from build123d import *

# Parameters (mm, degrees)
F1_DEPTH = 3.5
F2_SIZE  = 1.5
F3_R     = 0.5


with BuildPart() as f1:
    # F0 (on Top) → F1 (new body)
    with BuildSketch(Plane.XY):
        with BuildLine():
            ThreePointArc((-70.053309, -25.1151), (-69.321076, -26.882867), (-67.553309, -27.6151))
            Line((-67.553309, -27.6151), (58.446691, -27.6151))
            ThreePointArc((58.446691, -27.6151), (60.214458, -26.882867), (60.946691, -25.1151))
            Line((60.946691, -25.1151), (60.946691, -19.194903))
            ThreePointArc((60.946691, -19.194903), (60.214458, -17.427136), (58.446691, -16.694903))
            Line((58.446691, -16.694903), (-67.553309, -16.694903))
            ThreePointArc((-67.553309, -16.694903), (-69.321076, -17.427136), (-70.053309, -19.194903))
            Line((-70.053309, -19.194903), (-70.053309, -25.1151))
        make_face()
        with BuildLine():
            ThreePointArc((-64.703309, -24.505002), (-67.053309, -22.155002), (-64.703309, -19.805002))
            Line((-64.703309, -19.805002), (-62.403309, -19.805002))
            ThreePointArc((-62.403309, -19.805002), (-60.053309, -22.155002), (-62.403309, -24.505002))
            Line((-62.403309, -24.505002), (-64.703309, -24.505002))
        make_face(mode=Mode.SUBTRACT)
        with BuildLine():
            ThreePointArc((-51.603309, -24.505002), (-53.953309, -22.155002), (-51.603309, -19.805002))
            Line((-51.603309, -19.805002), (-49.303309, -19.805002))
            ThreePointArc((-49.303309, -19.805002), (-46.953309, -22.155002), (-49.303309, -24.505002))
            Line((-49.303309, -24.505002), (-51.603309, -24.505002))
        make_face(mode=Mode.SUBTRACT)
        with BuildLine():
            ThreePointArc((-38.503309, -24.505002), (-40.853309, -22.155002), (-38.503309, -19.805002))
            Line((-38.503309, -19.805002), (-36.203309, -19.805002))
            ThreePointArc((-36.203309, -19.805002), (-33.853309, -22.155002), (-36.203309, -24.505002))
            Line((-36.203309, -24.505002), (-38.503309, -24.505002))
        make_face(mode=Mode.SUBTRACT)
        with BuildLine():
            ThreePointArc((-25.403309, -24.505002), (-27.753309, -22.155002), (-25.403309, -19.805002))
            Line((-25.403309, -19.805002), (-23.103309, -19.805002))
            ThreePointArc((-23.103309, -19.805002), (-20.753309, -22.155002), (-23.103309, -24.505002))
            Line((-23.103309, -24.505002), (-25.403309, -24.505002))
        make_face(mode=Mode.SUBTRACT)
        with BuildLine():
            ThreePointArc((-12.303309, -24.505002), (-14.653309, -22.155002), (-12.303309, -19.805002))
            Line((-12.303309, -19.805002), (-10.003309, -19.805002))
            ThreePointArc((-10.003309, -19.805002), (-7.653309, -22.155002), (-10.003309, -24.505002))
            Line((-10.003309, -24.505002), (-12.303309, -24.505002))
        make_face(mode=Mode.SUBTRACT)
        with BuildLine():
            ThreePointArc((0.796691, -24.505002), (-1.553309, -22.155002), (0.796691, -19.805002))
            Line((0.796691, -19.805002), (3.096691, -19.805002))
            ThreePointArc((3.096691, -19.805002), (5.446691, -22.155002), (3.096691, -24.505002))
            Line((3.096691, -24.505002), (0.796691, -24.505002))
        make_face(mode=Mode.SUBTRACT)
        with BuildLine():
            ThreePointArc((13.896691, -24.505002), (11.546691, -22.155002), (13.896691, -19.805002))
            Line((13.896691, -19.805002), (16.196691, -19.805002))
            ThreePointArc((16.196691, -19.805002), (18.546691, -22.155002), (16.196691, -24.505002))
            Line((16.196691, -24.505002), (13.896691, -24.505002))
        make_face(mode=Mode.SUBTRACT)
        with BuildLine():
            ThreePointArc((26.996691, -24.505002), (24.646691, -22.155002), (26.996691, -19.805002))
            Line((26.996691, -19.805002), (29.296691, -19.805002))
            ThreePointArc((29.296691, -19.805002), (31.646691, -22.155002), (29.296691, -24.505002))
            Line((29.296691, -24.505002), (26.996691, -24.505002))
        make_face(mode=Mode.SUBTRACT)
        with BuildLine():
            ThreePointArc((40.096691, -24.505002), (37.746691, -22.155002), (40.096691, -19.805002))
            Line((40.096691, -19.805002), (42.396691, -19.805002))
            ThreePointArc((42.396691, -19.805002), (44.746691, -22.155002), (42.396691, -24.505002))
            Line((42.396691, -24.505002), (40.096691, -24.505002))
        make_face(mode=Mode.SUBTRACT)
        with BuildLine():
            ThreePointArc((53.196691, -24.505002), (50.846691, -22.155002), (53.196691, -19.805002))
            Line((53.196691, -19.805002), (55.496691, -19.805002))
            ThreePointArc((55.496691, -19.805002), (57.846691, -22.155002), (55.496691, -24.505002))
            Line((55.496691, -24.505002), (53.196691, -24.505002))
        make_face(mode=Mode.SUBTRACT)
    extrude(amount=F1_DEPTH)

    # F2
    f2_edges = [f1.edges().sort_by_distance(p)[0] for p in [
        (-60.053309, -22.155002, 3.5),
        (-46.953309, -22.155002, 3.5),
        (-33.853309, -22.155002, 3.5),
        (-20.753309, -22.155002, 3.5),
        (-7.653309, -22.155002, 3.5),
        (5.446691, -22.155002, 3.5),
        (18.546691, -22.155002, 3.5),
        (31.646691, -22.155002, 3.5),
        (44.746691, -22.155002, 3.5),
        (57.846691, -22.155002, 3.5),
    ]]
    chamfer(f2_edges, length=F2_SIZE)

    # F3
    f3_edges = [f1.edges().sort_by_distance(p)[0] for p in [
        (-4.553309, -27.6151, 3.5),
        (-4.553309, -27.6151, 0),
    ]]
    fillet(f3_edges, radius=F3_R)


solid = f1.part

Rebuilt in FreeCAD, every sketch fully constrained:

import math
import FreeCAD as App
import Part
import Sketcher

V = App.Vector
Q = App.Units.Quantity


def edges_at(feature, points):
    """Names of the edges that pass closest to the given points."""
    edges = feature.Shape.Edges
    near = lambda p: min(range(len(edges)), key=lambda i: edges[i].distToShape(Part.Vertex(*p))[0])
    return sorted({f"Edge{near(p) + 1}" for p in points})

doc = App.newDocument("Part")
body = doc.addObject("PartDesign::Body", "Body")

# Sketch on XY plane
sketch1 = body.newObject("Sketcher::SketchObject", "Sketch")
sketch1.AttachmentSupport = (doc.getObject("XY_Plane"), [""])
sketch1.MapMode = "FlatFace"
sketch1.addGeometry([
    Part.ArcOfCircle(Part.Circle(V(-67.6, -25.1, 0), V(0, 0, 1), 2.5), math.radians(180), math.radians(270)),  # 0
    Part.LineSegment(V(-67.6, -27.6, 0), V(58.4, -27.6, 0)),  # 1
    Part.ArcOfCircle(Part.Circle(V(58.4, -25.1, 0), V(0, 0, 1), 2.5), math.radians(-90), math.radians(0)),  # 2
    Part.LineSegment(V(60.9, -25.1, 0), V(60.9, -19.2, 0)),  # 3
    Part.ArcOfCircle(Part.Circle(V(58.4, -19.2, 0), V(0, 0, 1), 2.5), math.radians(0), math.radians(90)),  # 4
    Part.LineSegment(V(58.4, -16.7, 0), V(-67.6, -16.7, 0)),  # 5
    Part.ArcOfCircle(Part.Circle(V(-67.6, -19.2, 0), V(0, 0, 1), 2.5), math.radians(90), math.radians(180)),  # 6
    Part.LineSegment(V(-70.1, -19.2, 0), V(-70.1, -25.1, 0)),  # 7
    Part.LineSegment(V(-62.4, -24.5, 0), V(-64.7, -24.5, 0)),  # 8
    Part.ArcOfCircle(Part.Circle(V(-64.7, -22.2, 0), V(0, 0, 1), 2.4), math.radians(90), math.radians(270)),  # 9
    Part.LineSegment(V(-64.7, -19.8, 0), V(-62.4, -19.8, 0)),  # 10
    Part.ArcOfCircle(Part.Circle(V(-62.4, -22.2, 0), V(0, 0, 1), 2.4), math.radians(-90), math.radians(90)),  # 11
    Part.LineSegment(V(42.4, -24.5, 0), V(40.1, -24.5, 0)),  # 12
    Part.ArcOfCircle(Part.Circle(V(40.1, -22.2, 0), V(0, 0, 1), 2.4), math.radians(90), math.radians(270)),  # 13
    Part.LineSegment(V(40.1, -19.8, 0), V(42.4, -19.8, 0)),  # 14
    Part.ArcOfCircle(Part.Circle(V(42.4, -22.2, 0), V(0, 0, 1), 2.4), math.radians(-90), math.radians(90)),  # 15
    Part.LineSegment(V(-49.3, -24.5, 0), V(-51.6, -24.5, 0)),  # 16
    Part.ArcOfCircle(Part.Circle(V(-51.6, -22.2, 0), V(0, 0, 1), 2.4), math.radians(90), math.radians(270)),  # 17
    Part.LineSegment(V(-51.6, -19.8, 0), V(-49.3, -19.8, 0)),  # 18
    Part.ArcOfCircle(Part.Circle(V(-49.3, -22.2, 0), V(0, 0, 1), 2.4), math.radians(-90), math.radians(90)),  # 19
    Part.LineSegment(V(-36.2, -24.5, 0), V(-38.5, -24.5, 0)),  # 20
    Part.ArcOfCircle(Part.Circle(V(-38.5, -22.2, 0), V(0, 0, 1), 2.4), math.radians(90), math.radians(270)),  # 21
    Part.LineSegment(V(-38.5, -19.8, 0), V(-36.2, -19.8, 0)),  # 22
    Part.ArcOfCircle(Part.Circle(V(-36.2, -22.2, 0), V(0, 0, 1), 2.4), math.radians(-90), math.radians(90)),  # 23
    Part.LineSegment(V(-23.1, -24.5, 0), V(-25.4, -24.5, 0)),  # 24
    Part.ArcOfCircle(Part.Circle(V(-25.4, -22.2, 0), V(0, 0, 1), 2.4), math.radians(90), math.radians(270)),  # 25
    Part.LineSegment(V(-25.4, -19.8, 0), V(-23.1, -19.8, 0)),  # 26
    Part.ArcOfCircle(Part.Circle(V(-23.1, -22.2, 0), V(0, 0, 1), 2.4), math.radians(-90), math.radians(90)),  # 27
    Part.LineSegment(V(-10, -24.5, 0), V(-12.3, -24.5, 0)),  # 28
    Part.ArcOfCircle(Part.Circle(V(-12.3, -22.2, 0), V(0, 0, 1), 2.4), math.radians(90), math.radians(270)),  # 29
    Part.LineSegment(V(-12.3, -19.8, 0), V(-10, -19.8, 0)),  # 30
    Part.ArcOfCircle(Part.Circle(V(-10, -22.2, 0), V(0, 0, 1), 2.4), math.radians(-90), math.radians(90)),  # 31
    Part.LineSegment(V(3.1, -24.5, 0), V(0.8, -24.5, 0)),  # 32
    Part.ArcOfCircle(Part.Circle(V(0.8, -22.2, 0), V(0, 0, 1), 2.4), math.radians(90), math.radians(270)),  # 33
    Part.LineSegment(V(0.8, -19.8, 0), V(3.1, -19.8, 0)),  # 34
    Part.ArcOfCircle(Part.Circle(V(3.1, -22.2, 0), V(0, 0, 1), 2.4), math.radians(-90), math.radians(90)),  # 35
    Part.LineSegment(V(16.2, -24.5, 0), V(13.9, -24.5, 0)),  # 36
    Part.ArcOfCircle(Part.Circle(V(13.9, -22.2, 0), V(0, 0, 1), 2.4), math.radians(90), math.radians(270)),  # 37
    Part.LineSegment(V(13.9, -19.8, 0), V(16.2, -19.8, 0)),  # 38
    Part.ArcOfCircle(Part.Circle(V(16.2, -22.2, 0), V(0, 0, 1), 2.4), math.radians(-90), math.radians(90)),  # 39
    Part.LineSegment(V(29.3, -24.5, 0), V(27, -24.5, 0)),  # 40
    Part.ArcOfCircle(Part.Circle(V(27, -22.2, 0), V(0, 0, 1), 2.4), math.radians(90), math.radians(270)),  # 41
    Part.LineSegment(V(27, -19.8, 0), V(29.3, -19.8, 0)),  # 42
    Part.ArcOfCircle(Part.Circle(V(29.3, -22.2, 0), V(0, 0, 1), 2.4), math.radians(-90), math.radians(90)),  # 43
    Part.LineSegment(V(55.5, -24.5, 0), V(53.2, -24.5, 0)),  # 44
    Part.ArcOfCircle(Part.Circle(V(53.2, -22.2, 0), V(0, 0, 1), 2.4), math.radians(90), math.radians(270)),  # 45
    Part.LineSegment(V(53.2, -19.8, 0), V(55.5, -19.8, 0)),  # 46
    Part.ArcOfCircle(Part.Circle(V(55.5, -22.2, 0), V(0, 0, 1), 2.4), math.radians(-90), math.radians(90)),  # 47
], False)
sketch1.addConstraint([
    Sketcher.Constraint("Tangent", 0, 2, 1, 1),
    Sketcher.Constraint("Tangent", 1, 2, 2, 1),
    Sketcher.Constraint("Tangent", 2, 2, 3, 1),
    Sketcher.Constraint("Tangent", 3, 2, 4, 1),
    Sketcher.Constraint("Tangent", 4, 2, 5, 1),
    Sketcher.Constraint("Tangent", 5, 2, 6, 1),
    Sketcher.Constraint("Tangent", 6, 2, 7, 1),
    Sketcher.Constraint("Tangent", 7, 2, 0, 1),
    Sketcher.Constraint("Tangent", 8, 2, 9, 2),
    Sketcher.Constraint("Tangent", 9, 1, 10, 1),
    Sketcher.Constraint("Tangent", 10, 2, 11, 2),
    Sketcher.Constraint("Tangent", 11, 1, 8, 1),
    Sketcher.Constraint("Tangent", 12, 2, 13, 2),
    Sketcher.Constraint("Tangent", 13, 1, 14, 1),
    Sketcher.Constraint("Tangent", 14, 2, 15, 2),
    Sketcher.Constraint("Tangent", 15, 1, 12, 1),
    Sketcher.Constraint("Tangent", 16, 2, 17, 2),
    Sketcher.Constraint("Tangent", 17, 1, 18, 1),
    Sketcher.Constraint("Tangent", 18, 2, 19, 2),
    Sketcher.Constraint("Tangent", 19, 1, 16, 1),
    Sketcher.Constraint("Tangent", 20, 2, 21, 2),
    Sketcher.Constraint("Tangent", 21, 1, 22, 1),
    Sketcher.Constraint("Tangent", 22, 2, 23, 2),
    Sketcher.Constraint("Tangent", 23, 1, 20, 1),
    Sketcher.Constraint("Tangent", 24, 2, 25, 2),
    Sketcher.Constraint("Tangent", 25, 1, 26, 1),
    Sketcher.Constraint("Tangent", 26, 2, 27, 2),
    Sketcher.Constraint("Tangent", 27, 1, 24, 1),
    Sketcher.Constraint("Tangent", 28, 2, 29, 2),
    Sketcher.Constraint("Tangent", 29, 1, 30, 1),
    Sketcher.Constraint("Tangent", 30, 2, 31, 2),
    Sketcher.Constraint("Tangent", 31, 1, 28, 1),
    Sketcher.Constraint("Tangent", 32, 2, 33, 2),
    Sketcher.Constraint("Tangent", 33, 1, 34, 1),
    Sketcher.Constraint("Tangent", 34, 2, 35, 2),
    Sketcher.Constraint("Tangent", 35, 1, 32, 1),
    Sketcher.Constraint("Tangent", 36, 2, 37, 2),
    Sketcher.Constraint("Tangent", 37, 1, 38, 1),
    Sketcher.Constraint("Tangent", 38, 2, 39, 2),
    Sketcher.Constraint("Tangent", 39, 1, 36, 1),
    Sketcher.Constraint("Tangent", 40, 2, 41, 2),
    Sketcher.Constraint("Tangent", 41, 1, 42, 1),
    Sketcher.Constraint("Tangent", 42, 2, 43, 2),
    Sketcher.Constraint("Tangent", 43, 1, 40, 1),
    Sketcher.Constraint("Tangent", 44, 2, 45, 2),
    Sketcher.Constraint("Tangent", 45, 1, 46, 1),
    Sketcher.Constraint("Tangent", 46, 2, 47, 2),
    Sketcher.Constraint("Tangent", 47, 1, 44, 1),
    Sketcher.Constraint("Horizontal", 1),
    Sketcher.Constraint("Vertical", 3),
    Sketcher.Constraint("Horizontal", 5),
    Sketcher.Constraint("Vertical", 7),
    Sketcher.Constraint("Horizontal", 8),
    Sketcher.Constraint("Horizontal", 10),
    Sketcher.Constraint("Horizontal", 12),
    Sketcher.Constraint("Horizontal", 14),
    Sketcher.Constraint("Horizontal", 16),
    Sketcher.Constraint("Horizontal", 18),
    Sketcher.Constraint("Horizontal", 20),
    Sketcher.Constraint("Horizontal", 22),
    Sketcher.Constraint("Horizontal", 24),
    Sketcher.Constraint("Horizontal", 26),
    Sketcher.Constraint("Horizontal", 28),
    Sketcher.Constraint("Horizontal", 30),
    Sketcher.Constraint("Horizontal", 32),
    Sketcher.Constraint("Horizontal", 34),
    Sketcher.Constraint("Horizontal", 36),
    Sketcher.Constraint("Horizontal", 38),
    Sketcher.Constraint("Horizontal", 40),
    Sketcher.Constraint("Horizontal", 42),
    Sketcher.Constraint("Horizontal", 44),
    Sketcher.Constraint("Horizontal", 46),
    Sketcher.Constraint("Equal", 0, 2),
    Sketcher.Constraint("Equal", 2, 4),
    Sketcher.Constraint("Equal", 4, 6),
    Sketcher.Constraint("Equal", 11, 13),
    Sketcher.Constraint("Equal", 15, 17),
    Sketcher.Constraint("Equal", 19, 21),
    Sketcher.Constraint("Equal", 23, 25),
    Sketcher.Constraint("Equal", 27, 29),
    Sketcher.Constraint("Equal", 31, 33),
    Sketcher.Constraint("Equal", 35, 37),
    Sketcher.Constraint("Equal", 39, 41),
    Sketcher.Constraint("Equal", 43, 45),
    Sketcher.Constraint("Horizontal", 11, 3, 13, 3),
    Sketcher.Constraint("Horizontal", 15, 3, 17, 3),
    Sketcher.Constraint("Horizontal", 19, 3, 21, 3),
    Sketcher.Constraint("Horizontal", 23, 3, 25, 3),
    Sketcher.Constraint("Horizontal", 27, 3, 29, 3),
    Sketcher.Constraint("Horizontal", 31, 3, 33, 3),
    Sketcher.Constraint("Horizontal", 35, 3, 37, 3),
    Sketcher.Constraint("Horizontal", 39, 3, 41, 3),
    Sketcher.Constraint("Horizontal", 43, 3, 45, 3),
    Sketcher.Constraint("Equal", 10, 12),
    Sketcher.Constraint("Equal", 14, 16),
    Sketcher.Constraint("Equal", 18, 20),
    Sketcher.Constraint("Equal", 22, 24),
    Sketcher.Constraint("Equal", 26, 28),
    Sketcher.Constraint("Equal", 30, 32),
    Sketcher.Constraint("Equal", 34, 36),
    Sketcher.Constraint("Equal", 38, 40),
    Sketcher.Constraint("Equal", 42, 44),
    Sketcher.Constraint("Radius", 0, Q("2.5 mm")),
    Sketcher.Constraint("DistanceX", 1, 1, 1, 2, Q("126 mm")),
    Sketcher.Constraint("Radius", 9, Q("2.35 mm")),
    Sketcher.Constraint("DistanceX", 8, 2, 8, 1, Q("2.3 mm")),
    Sketcher.Constraint("DistanceY", 9, 3, -1, 1, Q("22.155002 mm")),
    Sketcher.Constraint("DistanceY", 0, 3, -1, 1, Q("25.1151 mm")),
    Sketcher.Constraint("DistanceY", 3, 1, 3, 2, Q("5.920197 mm")),
    Sketcher.Constraint("DistanceX", 0, 3, -1, 1, Q("67.553309 mm")),
    Sketcher.Constraint("DistanceX", 9, 3, -1, 1, Q("64.703309 mm")),
    Sketcher.Constraint("DistanceX", -1, 1, 13, 3, Q("40.096691 mm")),
    Sketcher.Constraint("DistanceX", 17, 3, -1, 1, Q("51.603309 mm")),
    Sketcher.Constraint("DistanceX", 21, 3, -1, 1, Q("38.503309 mm")),
    Sketcher.Constraint("DistanceX", 25, 3, -1, 1, Q("25.403309 mm")),
    Sketcher.Constraint("DistanceX", 29, 3, -1, 1, Q("12.303309 mm")),
    Sketcher.Constraint("DistanceX", -1, 1, 33, 3, Q("0.796691 mm")),
    Sketcher.Constraint("DistanceX", -1, 1, 37, 3, Q("13.896691 mm")),
    Sketcher.Constraint("DistanceX", -1, 1, 41, 3, Q("26.996691 mm")),
    Sketcher.Constraint("DistanceX", -1, 1, 45, 3, Q("53.196691 mm")),
])
pad1 = body.newObject("PartDesign::Pad", "Pad")
pad1.Profile = sketch1
pad1.Length = 3.5
doc.recompute()

chamfer = body.newObject("PartDesign::Chamfer", "Chamfer")
chamfer.Base = (pad1, edges_at(pad1, [
    (-60.053, -22.155, 3.5),
    (-46.953, -22.155, 3.5),
    (-33.853, -22.155, 3.5),
    (-20.753, -22.155, 3.5),
    (-7.653, -22.155, 3.5),
    (5.447, -22.155, 3.5),
    (18.547, -22.155, 3.5),
    (31.647, -22.155, 3.5),
    (44.747, -22.155, 3.5),
    (57.847, -22.155, 3.5),
]))
chamfer.Size = 1.5
doc.recompute()

fillet = body.newObject("PartDesign::Fillet", "Fillet")
fillet.Base = (chamfer, edges_at(chamfer, [(-4.553, -27.615, 3.5), (-4.553, -27.615, 0)]))
fillet.Radius = 0.5

doc.recompute()
